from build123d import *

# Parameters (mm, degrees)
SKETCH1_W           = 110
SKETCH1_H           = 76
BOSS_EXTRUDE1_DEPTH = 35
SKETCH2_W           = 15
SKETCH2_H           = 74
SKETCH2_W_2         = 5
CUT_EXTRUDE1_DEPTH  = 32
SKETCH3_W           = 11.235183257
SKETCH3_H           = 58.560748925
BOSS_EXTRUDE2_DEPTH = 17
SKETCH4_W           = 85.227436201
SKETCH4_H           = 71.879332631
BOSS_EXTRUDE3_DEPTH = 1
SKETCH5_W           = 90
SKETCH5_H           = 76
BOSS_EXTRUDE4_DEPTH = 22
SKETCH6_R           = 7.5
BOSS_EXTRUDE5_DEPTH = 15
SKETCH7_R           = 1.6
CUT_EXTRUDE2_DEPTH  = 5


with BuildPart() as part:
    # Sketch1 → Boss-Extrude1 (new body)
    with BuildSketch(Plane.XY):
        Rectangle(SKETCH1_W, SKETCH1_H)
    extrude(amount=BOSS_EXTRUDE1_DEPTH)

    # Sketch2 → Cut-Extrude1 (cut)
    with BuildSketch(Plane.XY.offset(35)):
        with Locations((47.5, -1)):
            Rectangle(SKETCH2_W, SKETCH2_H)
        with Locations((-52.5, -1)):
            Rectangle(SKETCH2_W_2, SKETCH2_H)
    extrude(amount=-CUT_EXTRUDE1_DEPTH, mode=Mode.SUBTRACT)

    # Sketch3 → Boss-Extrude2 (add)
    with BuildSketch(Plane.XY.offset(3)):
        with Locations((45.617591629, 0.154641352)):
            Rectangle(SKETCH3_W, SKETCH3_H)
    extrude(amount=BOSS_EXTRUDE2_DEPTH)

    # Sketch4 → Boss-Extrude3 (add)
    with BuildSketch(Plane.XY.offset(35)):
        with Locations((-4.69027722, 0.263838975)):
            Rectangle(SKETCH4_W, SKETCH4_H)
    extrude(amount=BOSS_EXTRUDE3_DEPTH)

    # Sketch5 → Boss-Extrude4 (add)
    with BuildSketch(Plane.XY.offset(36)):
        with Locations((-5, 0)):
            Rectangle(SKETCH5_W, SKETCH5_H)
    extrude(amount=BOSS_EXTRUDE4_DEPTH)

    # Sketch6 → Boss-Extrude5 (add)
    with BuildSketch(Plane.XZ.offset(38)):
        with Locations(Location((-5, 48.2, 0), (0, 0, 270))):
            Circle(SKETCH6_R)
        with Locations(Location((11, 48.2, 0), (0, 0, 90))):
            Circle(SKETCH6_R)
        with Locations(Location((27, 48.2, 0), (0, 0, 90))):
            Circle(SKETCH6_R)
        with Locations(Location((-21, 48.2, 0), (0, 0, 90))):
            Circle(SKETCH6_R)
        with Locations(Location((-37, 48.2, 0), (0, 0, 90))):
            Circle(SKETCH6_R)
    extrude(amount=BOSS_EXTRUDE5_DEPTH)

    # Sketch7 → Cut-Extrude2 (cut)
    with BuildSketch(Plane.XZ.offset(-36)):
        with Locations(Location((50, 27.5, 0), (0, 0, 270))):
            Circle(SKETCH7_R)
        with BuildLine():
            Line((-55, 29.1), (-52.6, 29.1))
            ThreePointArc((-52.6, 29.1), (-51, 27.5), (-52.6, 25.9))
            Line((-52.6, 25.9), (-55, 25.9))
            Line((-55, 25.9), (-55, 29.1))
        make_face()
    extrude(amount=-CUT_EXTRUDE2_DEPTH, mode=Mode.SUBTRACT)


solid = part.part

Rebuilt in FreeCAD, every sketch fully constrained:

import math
import FreeCAD as App
import Part
import Sketcher

doc = App.newDocument("Part")
body = doc.addObject("PartDesign::Body", "Body")

# Sketch on XY plane
sketch1 = body.newObject("Sketcher::SketchObject", "Sketch")
sketch1.AttachmentSupport = (doc.getObject("XY_Plane"), [""])
sketch1.MapMode = "FlatFace"
sketch1.addGeometry(Part.LineSegment(App.Vector(-55, 38, 0), App.Vector(-55, -38, 0)), False)
sketch1.addGeometry(Part.LineSegment(App.Vector(-55, -38, 0), App.Vector(55, -38, 0)), False)
sketch1.addGeometry(Part.LineSegment(App.Vector(55, -38, 0), App.Vector(55, 38, 0)), False)
sketch1.addGeometry(Part.LineSegment(App.Vector(55, 38, 0), App.Vector(-55, 38, 0)), False)
sketch1.addConstraint(Sketcher.Constraint("Coincident", 0, 2, 1, 1))
sketch1.addConstraint(Sketcher.Constraint("Coincident", 1, 2, 2, 1))
sketch1.addConstraint(Sketcher.Constraint("Coincident", 2, 2, 3, 1))
sketch1.addConstraint(Sketcher.Constraint("Coincident", 3, 2, 0, 1))
sketch1.addConstraint(Sketcher.Constraint("Vertical", 0))
sketch1.addConstraint(Sketcher.Constraint("Horizontal", 1))
sketch1.addConstraint(Sketcher.Constraint("Vertical", 2))
sketch1.addConstraint(Sketcher.Constraint("Horizontal", 3))
sketch1.addConstraint(Sketcher.Constraint("Symmetric", 0, 2, 2, 2, -1, 1))
sketch1.addConstraint(Sketcher.Constraint("DistanceX", 1, 1, 1, 2, 110.0))
sketch1.addConstraint(Sketcher.Constraint("DistanceY", 0, 2, 0, 1, 76.0))
pad1 = body.newObject("PartDesign::Pad", "Pad")
pad1.Profile = sketch1
pad1.Length = 35

# Sketch on XY plane
sketch2 = body.newObject("Sketcher::SketchObject", "Sketch001")
sketch2.AttachmentSupport = (doc.getObject("XY_Plane"), [""])
sketch2.MapMode = "FlatFace"
sketch2.AttachmentOffset = App.Placement(App.Vector(0, 0, 35), App.Rotation())
sketch2.addGeometry(Part.LineSegment(App.Vector(40, 36, 0), App.Vector(40, -38, 0)), False)
sketch2.addGeometry(Part.LineSegment(App.Vector(40, -38, 0), App.Vector(55, -38, 0)), False)
sketch2.addGeometry(Part.LineSegment(App.Vector(55, -38, 0), App.Vector(55, 36, 0)), False)
sketch2.addGeometry(Part.LineSegment(App.Vector(55, 36, 0), App.Vector(40, 36, 0)), False)
sketch2.addGeometry(Part.LineSegment(App.Vector(-55, 36, 0), App.Vector(-55, -38, 0)), False)
sketch2.addGeometry(Part.LineSegment(App.Vector(-55, -38, 0), App.Vector(-50, -38, 0)), False)
sketch2.addGeometry(Part.LineSegment(App.Vector(-50, -38, 0), App.Vector(-50, 36, 0)), False)
sketch2.addGeometry(Part.LineSegment(App.Vector(-50, 36, 0), App.Vector(-55, 36, 0)), False)
sketch2.addConstraint(Sketcher.Constraint("Coincident", 0, 2, 1, 1))
sketch2.addConstraint(Sketcher.Constraint("Coincident", 1, 2, 2, 1))
sketch2.addConstraint(Sketcher.Constraint("Coincident", 2, 2, 3, 1))
sketch2.addConstraint(Sketcher.Constraint("Coincident", 3, 2, 0, 1))
sketch2.addConstraint(Sketcher.Constraint("Coincident", 4, 2, 5, 1))
sketch2.addConstraint(Sketcher.Constraint("Coincident", 5, 2, 6, 1))
sketch2.addConstraint(Sketcher.Constraint("Coincident", 6, 2, 7, 1))
sketch2.addConstraint(Sketcher.Constraint("Coincident", 7, 2, 4, 1))
sketch2.addConstraint(Sketcher.Constraint("Vertical", 0))
sketch2.addConstraint(Sketcher.Constraint("Horizontal", 1))
sketch2.addConstraint(Sketcher.Constraint("Vertical", 2))
sketch2.addConstraint(Sketcher.Constraint("Horizontal", 3))
sketch2.addConstraint(Sketcher.Constraint("Vertical", 4))
sketch2.addConstraint(Sketcher.Constraint("Horizontal", 5))
sketch2.addConstraint(Sketcher.Constraint("Vertical", 6))
sketch2.addConstraint(Sketcher.Constraint("Horizontal", 7))
sketch2.addConstraint(Sketcher.Constraint("Symmetric", 1, 2, 4, 2, -2))
sketch2.addConstraint(Sketcher.Constraint("Horizontal", 3, 2, 6, 2))
sketch2.addConstraint(Sketcher.Constraint("DistanceX", 1, 1, 1, 2, 15.0))
sketch2.addConstraint(Sketcher.Constraint("DistanceX", 5, 1, 5, 2, 5.0))
sketch2.addConstraint(Sketcher.Constraint("DistanceY", 0, 2, 0, 1, 74.0))
sketch2.addConstraint(Sketcher.Constraint("DistanceX", -1, 1, 0, 2, 40.0))
sketch2.addConstraint(Sketcher.Constraint("DistanceY", 0, 2, -1, 1, 38.0))
pocket1 = body.newObject("PartDesign::Pocket", "Pocket")
pocket1.Profile = sketch2
pocket1.Length = 32

# Sketch on XY plane
sketch3 = body.newObject("Sketcher::SketchObject", "Sketch002")
sketch3.AttachmentSupport = (doc.getObject("XY_Plane"), [""])
sketch3.MapMode = "FlatFace"
sketch3.AttachmentOffset = App.Placement(App.Vector(0, 0, 3), App.Rotation())
sketch3.addGeometry(Part.LineSegment(App.Vector(40, 29, 0), App.Vector(40, -29, 0)), False)
sketch3.addGeometry(Part.LineSegment(App.Vector(40, -29, 0), App.Vector(51, -29, 0)), False)
sketch3.addGeometry(Part.LineSegment(App.Vector(51, -29, 0), App.Vector(51, 29, 0)), False)
sketch3.addGeometry(Part.LineSegment(App.Vector(51, 29, 0), App.Vector(40, 29, 0)), False)
sketch3.addConstraint(Sketcher.Constraint("Coincident", 0, 2, 1, 1))
sketch3.addConstraint(Sketcher.Constraint("Coincident", 1, 2, 2, 1))
sketch3.addConstraint(Sketcher.Constraint("Coincident", 2, 2, 3, 1))
sketch3.addConstraint(Sketcher.Constraint("Coincident", 3, 2, 0, 1))
sketch3.addConstraint(Sketcher.Constraint("Vertical", 0))
sketch3.addConstraint(Sketcher.Constraint("Horizontal", 1))
sketch3.addConstraint(Sketcher.Constraint("Vertical", 2))
sketch3.addConstraint(Sketcher.Constraint("Horizontal", 3))
sketch3.addConstraint(Sketcher.Constraint("DistanceX", -1, 1, 0, 2, 40.0))
sketch3.addConstraint(Sketcher.Constraint("DistanceY", 0, 2, 0, 1, 58.560749))
sketch3.addConstraint(Sketcher.Constraint("DistanceX", 1, 1, 1, 2, 11.235183))
sketch3.addConstraint(Sketcher.Constraint("DistanceY", 0, 2, -1, 1, 29.125733))
pad2 = body.newObject("PartDesign::Pad", "Pad001")
pad2.Profile = sketch3
pad2.Length = 17

# Sketch on XY plane
sketch4 = body.newObject("Sketcher::SketchObject", "Sketch003")
sketch4.AttachmentSupport = (doc.getObject("XY_Plane"), [""])
sketch4.MapMode = "FlatFace"
sketch4.AttachmentOffset = App.Placement(App.Vector(0, 0, 35), App.Rotation())
sketch4.addGeometry(Part.LineSegment(App.Vector(-47, 36, 0), App.Vector(-47, -36, 0)), False)
sketch4.addGeometry(Part.LineSegment(App.Vector(-47, -36, 0), App.Vector(38, -36, 0)), False)
sketch4.addGeometry(Part.LineSegment(App.Vector(38, -36, 0), App.Vector(38, 36, 0)), False)
sketch4.addGeometry(Part.LineSegment(App.Vector(38, 36, 0), App.Vector(-47, 36, 0)), False)
sketch4.addConstraint(Sketcher.Constraint("Coincident", 0, 2, 1, 1))
sketch4.addConstraint(Sketcher.Constraint("Coincident", 1, 2, 2, 1))
sketch4.addConstraint(Sketcher.Constraint("Coincident", 2, 2, 3, 1))
sketch4.addConstraint(Sketcher.Constraint("Coincident", 3, 2, 0, 1))
sketch4.addConstraint(Sketcher.Constraint("Vertical", 0))
sketch4.addConstraint(Sketcher.Constraint("Horizontal", 1))
sketch4.addConstraint(Sketcher.Constraint("Vertical", 2))
sketch4.addConstraint(Sketcher.Constraint("Horizontal", 3))
sketch4.addConstraint(Sketcher.Constraint("DistanceX", 1, 1, 1, 2, 85.227436))
sketch4.addConstraint(Sketcher.Constraint("DistanceY", 0, 2, 0, 1, 71.879333))
sketch4.addConstraint(Sketcher.Constraint("DistanceX", -1, 1, 1, 2, 37.923441))
sketch4.addConstraint(Sketcher.Constraint("DistanceY", 0, 2, -1, 1, 35.675827))
pad3 = body.newObject("PartDesign::Pad", "Pad002")
pad3.Profile = sketch4
pad3.Length = 1

# Sketch on XY plane
sketch5 = body.newObject("Sketcher::SketchObject", "Sketch004")
sketch5.AttachmentSupport = (doc.getObject("XY_Plane"), [""])
sketch5.MapMode = "FlatFace"
sketch5.AttachmentOffset = App.Placement(App.Vector(0, 0, 36), App.Rotation())
sketch5.addGeometry(Part.LineSegment(App.Vector(-50, 38, 0), App.Vector(-50, -38, 0)), False)
sketch5.addGeometry(Part.LineSegment(App.Vector(-50, -38, 0), App.Vector(40, -38, 0)), False)
sketch5.addGeometry(Part.LineSegment(App.Vector(40, -38, 0), App.Vector(40, 38, 0)), False)
sketch5.addGeometry(Part.LineSegment(App.Vector(40, 38, 0), App.Vector(-50, 38, 0)), False)
sketch5.addConstraint(Sketcher.Constraint("Coincident", 0, 2, 1, 1))
sketch5.addConstraint(Sketcher.Constraint("Coincident", 1, 2, 2, 1))
sketch5.addConstraint(Sketcher.Constraint("Coincident", 2, 2, 3, 1))
sketch5.addConstraint(Sketcher.Constraint("Coincident", 3, 2, 0, 1))
sketch5.addConstraint(Sketcher.Constraint("Vertical", 0))
sketch5.addConstraint(Sketcher.Constraint("Horizontal", 1))
sketch5.addConstraint(Sketcher.Constraint("Vertical", 2))
sketch5.addConstraint(Sketcher.Constraint("Horizontal", 3))
sketch5.addConstraint(Sketcher.Constraint("DistanceX", 1, 1, 1, 2, 90.0))
sketch5.addConstraint(Sketcher.Constraint("DistanceY", 0, 2, 0, 1, 76.0))
sketch5.addConstraint(Sketcher.Constraint("DistanceX", 0, 2, -1, 1, 50.0))
sketch5.addConstraint(Sketcher.Constraint("DistanceY", 0, 2, -1, 1, 38.0))
pad4 = body.newObject("PartDesign::Pad", "Pad003")
pad4.Profile = sketch5
pad4.Length = 22

# Sketch on XZ plane
sketch6 = body.newObject("Sketcher::SketchObject", "Sketch005")
sketch6.AttachmentSupport = (doc.getObject("XZ_Plane"), [""])
sketch6.MapMode = "FlatFace"
sketch6.AttachmentOffset = App.Placement(App.Vector(0, 0, 38), App.Rotation())
sketch6.addGeometry(Part.Circle(App.Vector(-5, 48, 0), App.Vector(0, 0, 1), 8), False)
sketch6.addGeometry(Part.Circle(App.Vector(11, 48, 0), App.Vector(0, 0, 1), 8), False)
sketch6.addGeometry(Part.Circle(App.Vector(27, 48, 0), App.Vector(0, 0, 1), 8), False)
sketch6.addGeometry(Part.Circle(App.Vector(-21, 48, 0), App.Vector(0, 0, 1), 8), False)
sketch6.addGeometry(Part.Circle(App.Vector(-37, 48, 0), App.Vector(0, 0, 1), 8), False)
sketch6.addConstraint(Sketcher.Constraint("Equal", 0, 1))
sketch6.addConstraint(Sketcher.Constraint("Equal", 1, 2))
sketch6.addConstraint(Sketcher.Constraint("Equal", 2, 3))
sketch6.addConstraint(Sketcher.Constraint("Equal", 3, 4))
sketch6.addConstraint(Sketcher.Constraint("Horizontal", 0, 3, 1, 3))
sketch6.addConstraint(Sketcher.Constraint("Horizontal", 1, 3, 2, 3))
sketch6.addConstraint(Sketcher.Constraint("Horizontal", 2, 3, 3, 3))
sketch6.addConstraint(Sketcher.Constraint("Horizontal", 3, 3, 4, 3))
sketch6.addConstraint(Sketcher.Constraint("Diameter", 0, 15.0))
sketch6.addConstraint(Sketcher.Constraint("DistanceX", 0, 3, -1, 1, 5.0))
sketch6.addConstraint(Sketcher.Constraint("DistanceX", -1, 1, 1, 3, 11.0))
sketch6.addConstraint(Sketcher.Constraint("DistanceX", -1, 1, 2, 3, 27.0))
sketch6.addConstraint(Sketcher.Constraint("DistanceX", 3, 3, -1, 1, 21.0))
sketch6.addConstraint(Sketcher.Constraint("DistanceX", 4, 3, -1, 1, 37.0))
sketch6.addConstraint(Sketcher.Constraint("DistanceY", -1, 1, 0, 3, 48.2))
pad5 = body.newObject("PartDesign::Pad", "Pad004")
pad5.Profile = sketch6
pad5.Length = 15

# Sketch on XZ plane
sketch7 = body.newObject("Sketcher::SketchObject", "Sketch006")
sketch7.AttachmentSupport = (doc.getObject("XZ_Plane"), [""])
sketch7.MapMode = "FlatFace"
sketch7.AttachmentOffset = App.Placement(App.Vector(0, 0, -36), App.Rotation())
sketch7.addGeometry(Part.Circle(App.Vector(50, 27.5, 0), App.Vector(0, 0, 1), 1.6), False)
sketch7.addGeometry(Part.LineSegment(App.Vector(-52.6, 29.1, 0), App.Vector(-55, 29.1, 0)), False)
sketch7.addGeometry(Part.LineSegment(App.Vector(-55, 29.1, 0), App.Vector(-55, 25.9, 0)), False)
sketch7.addGeometry(Part.LineSegment(App.Vector(-55, 25.9, 0), App.Vector(-52.6, 25.9, 0)), False)
sketch7.addGeometry(Part.ArcOfCircle(Part.Circle(App.Vector(-52.6, 27.5, 0), App.Vector(0, 0, 1), 1.6), math.radians(-90), math.radians(90)), False)
sketch7.addConstraint(Sketcher.Constraint("Coincident", 1, 2, 2, 1))
sketch7.addConstraint(Sketcher.Constraint("Coincident", 2, 2, 3, 1))
sketch7.addConstraint(Sketcher.Constraint("Tangent", 3, 2, 4, 1))
sketch7.addConstraint(Sketcher.Constraint("Tangent", 4, 2, 1, 1))
sketch7.addConstraint(Sketcher.Constraint("Horizontal", 1))
sketch7.addConstraint(Sketcher.Constraint("Vertical", 2))
sketch7.addConstraint(Sketcher.Constraint("Horizontal", 3))
sketch7.addConstraint(Sketcher.Constraint("Equal", 0, 4))
sketch7.addConstraint(Sketcher.Constraint("Horizontal", 0, 3, 4, 3))
sketch7.addConstraint(Sketcher.Constraint("Diameter", 0, 3.2))
sketch7.addConstraint(Sketcher.Constraint("DistanceX", 1, 2, 1, 1, 2.4))
sketch7.addConstraint(Sketcher.Constraint("DistanceX", -1, 1, 0, 3, 50.0))
sketch7.addConstraint(Sketcher.Constraint("DistanceX", 1, 2, -1, 1, 55.0))
sketch7.addConstraint(Sketcher.Constraint("DistanceY", -1, 1, 0, 3, 27.5))
pocket2 = body.newObject("PartDesign::Pocket", "Pocket001")
pocket2.Profile = sketch7
pocket2.Length = 5

doc.recompute()
